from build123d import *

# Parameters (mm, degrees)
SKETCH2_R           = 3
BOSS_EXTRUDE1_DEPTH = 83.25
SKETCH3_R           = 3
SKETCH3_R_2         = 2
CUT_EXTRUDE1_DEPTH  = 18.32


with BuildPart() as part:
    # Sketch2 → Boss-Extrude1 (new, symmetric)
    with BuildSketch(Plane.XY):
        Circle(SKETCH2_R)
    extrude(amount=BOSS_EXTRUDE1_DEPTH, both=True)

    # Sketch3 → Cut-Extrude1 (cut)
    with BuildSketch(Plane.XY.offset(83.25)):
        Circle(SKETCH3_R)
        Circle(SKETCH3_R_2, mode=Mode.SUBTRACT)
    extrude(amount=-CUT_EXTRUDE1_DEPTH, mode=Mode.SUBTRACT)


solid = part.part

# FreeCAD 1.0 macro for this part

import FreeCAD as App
import Part
import Sketcher

doc = App.newDocument("Part")
params = doc.addObject("Spreadsheet::Sheet", "Params")
for row, (alias, value) in enumerate([
    ("sketch1_diameter", "6 mm"),
    ("pad1_length", "166.5 mm"),
    ("sketch2_diameter", "6 mm"),
    ("sketch2_diameter2", "4 mm"),
    ("pocket1_length", "18.32 mm"),
], start=1):
    params.set(f"A{row}", alias)
    params.set(f"B{row}", "=" + value)
    params.setAlias(f"B{row}", alias)

body = doc.addObject("PartDesign::Body", "Body")

sketch1 = body.newObject("Sketcher::SketchObject", "Sketch")
sketch1.AttachmentSupport = (doc.getObject("XY_Plane"), [""])
sketch1.MapMode = "FlatFace"
sketch1.addGeometry(Part.Circle(App.Vector(0, 0, 0), App.Vector(0, 0, 1), 3), False)
sketch1.addConstraint(Sketcher.Constraint("Coincident", 0, 3, -1, 1))
sketch1.addConstraint(Sketcher.Constraint("Diameter", 0, 6.0))
sketch1.setExpression("Constraints[1]", "Params.sketch1_diameter")
pad1 = body.newObject("PartDesign::Pad", "Pad")
pad1.Profile = sketch1
pad1.setExpression("Length", "Params.pad1_length")
pad1.Midplane = True

sketch2 = body.newObject("Sketcher::SketchObject", "Sketch001")
sketch2.AttachmentSupport = (doc.getObject("XY_Plane"), [""])
sketch2.MapMode = "FlatFace"
sketch2.AttachmentOffset = App.Placement(App.Vector(0, 0, 83.25), App.Rotation())
sketch2.addGeometry(Part.Circle(App.Vector(0, 0, 0), App.Vector(0, 0, 1), 3), False)
sketch2.addGeometry(Part.Circle(App.Vector(0, 0, 0), App.Vector(0, 0, 1), 2), False)
sketch2.addConstraint(Sketcher.Constraint("Coincident", 0, 3, -1, 1))
sketch2.addConstraint(Sketcher.Constraint("Coincident", 1, 3, -1, 1))
sketch2.addConstraint(Sketcher.Constraint("Diameter", 0, 6.0))
sketch2.addConstraint(Sketcher.Constraint("Diameter", 1, 4.0))
sketch2.setExpression("Constraints[2]", "Params.sketch2_diameter")
sketch2.setExpression("Constraints[3]", "Params.sketch2_diameter2")
pocket1 = body.newObject("PartDesign::Pocket", "Pocket")
pocket1.Profile = sketch2
pocket1.setExpression("Length", "Params.pocket1_length")

doc.recompute()
